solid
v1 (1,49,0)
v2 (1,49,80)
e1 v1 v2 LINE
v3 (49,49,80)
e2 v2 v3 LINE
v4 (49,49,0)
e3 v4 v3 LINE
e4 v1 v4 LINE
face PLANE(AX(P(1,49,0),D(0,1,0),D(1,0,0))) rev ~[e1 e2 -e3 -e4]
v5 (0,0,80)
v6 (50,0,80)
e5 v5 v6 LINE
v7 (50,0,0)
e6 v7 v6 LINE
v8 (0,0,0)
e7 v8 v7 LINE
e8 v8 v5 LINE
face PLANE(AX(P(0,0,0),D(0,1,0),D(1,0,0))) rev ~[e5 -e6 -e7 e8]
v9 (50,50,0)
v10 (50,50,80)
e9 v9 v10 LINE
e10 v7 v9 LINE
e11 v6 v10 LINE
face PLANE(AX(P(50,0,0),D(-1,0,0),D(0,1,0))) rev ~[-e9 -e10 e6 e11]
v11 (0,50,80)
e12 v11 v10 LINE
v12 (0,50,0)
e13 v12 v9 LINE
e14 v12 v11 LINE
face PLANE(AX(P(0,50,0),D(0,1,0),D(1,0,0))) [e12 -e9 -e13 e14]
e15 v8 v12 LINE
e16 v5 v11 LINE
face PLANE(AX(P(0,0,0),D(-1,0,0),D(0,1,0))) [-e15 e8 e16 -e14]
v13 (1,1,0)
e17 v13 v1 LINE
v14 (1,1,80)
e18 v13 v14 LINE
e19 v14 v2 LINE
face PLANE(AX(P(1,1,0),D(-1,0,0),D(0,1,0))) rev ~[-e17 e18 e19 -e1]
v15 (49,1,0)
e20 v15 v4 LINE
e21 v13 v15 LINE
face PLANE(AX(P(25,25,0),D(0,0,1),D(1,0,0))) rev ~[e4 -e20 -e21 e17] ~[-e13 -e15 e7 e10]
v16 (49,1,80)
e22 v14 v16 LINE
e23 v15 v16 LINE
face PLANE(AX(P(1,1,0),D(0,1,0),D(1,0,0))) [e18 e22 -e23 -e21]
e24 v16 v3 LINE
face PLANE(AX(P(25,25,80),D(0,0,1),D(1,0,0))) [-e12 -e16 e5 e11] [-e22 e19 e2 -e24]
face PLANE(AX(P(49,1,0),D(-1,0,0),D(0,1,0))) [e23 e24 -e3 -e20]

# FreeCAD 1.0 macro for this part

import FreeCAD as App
import Part
import Sketcher
Q = App.Units.Quantity


def add_polygon(sketch, points):
    """Adds a closed chain of lines whose ends are joined by coincident constraints."""
    first, n = sketch.GeometryCount, len(points)
    for a, b in zip(points, points[1:] + points[:1]):
        sketch.addGeometry(Part.LineSegment(App.Vector(*a, 0), App.Vector(*b, 0)), False)
    for i in range(n):
        sketch.addConstraint(Sketcher.Constraint("Coincident", first + i, 2, first + (i + 1) % n, 1))

doc = App.newDocument("Part")
body = doc.addObject("PartDesign::Body", "Body")

# Sketch on XY plane
sketch1 = doc.addObject("Sketcher::SketchObject", "Sketch")
body.addObject(sketch1)
sketch1.AttachmentSupport = (doc.XY_Plane, [""])
sketch1.MapMode = "FlatFace"
add_polygon(sketch1, [(1, 49), (1, 1), (49, 1), (49, 49)])  # lines 0-3
sketch1.addConstraint(Sketcher.Constraint("Vertical", 0))
sketch1.addConstraint(Sketcher.Constraint("Horizontal", 1))
sketch1.addConstraint(Sketcher.Constraint("Vertical", 2))
sketch1.addConstraint(Sketcher.Constraint("Horizontal", 3))
sketch1.addConstraint(Sketcher.Constraint("Equal", 3, 0))
sketch1.addConstraint(Sketcher.Constraint("DistanceX", 1, 1, 1, 2, Q("48 mm")))
sketch1.addConstraint(Sketcher.Constraint("DistanceX", -1, 1, 0, 2, Q("1 mm")))
sketch1.addConstraint(Sketcher.Constraint("DistanceY", -1, 1, 0, 2, Q("1 mm")))
pad1 = doc.addObject("PartDesign::Pad", "Pad")
body.addObject(pad1)
pad1.Profile = sketch1
pad1.Length = 80
body2 = doc.addObject("PartDesign::Body", "Body001")

# Sketch on XY plane
sketch2 = doc.addObject("Sketcher::SketchObject", "Sketch001")
body2.addObject(sketch2)
sketch2.AttachmentSupport = (doc.getObject("XY_Plane001"), [""])
sketch2.MapMode = "FlatFace"
add_polygon(sketch2, [(0, 50), (0, 0), (50, 0), (50, 50)])  # lines 0-3
sketch2.addConstraint(Sketcher.Constraint("Vertical", 0))
sketch2.addConstraint(Sketcher.Constraint("Horizontal", 1))
sketch2.addConstraint(Sketcher.Constraint("Vertical", 2))
sketch2.addConstraint(Sketcher.Constraint("Horizontal", 3))
sketch2.addConstraint(Sketcher.Constraint("Coincident", 0, 2, -1, 1))
sketch2.addConstraint(Sketcher.Constraint("Equal", 3, 0))
sketch2.addConstraint(Sketcher.Constraint("DistanceX", 1, 1, 1, 2, Q("50 mm")))
pad2 = doc.addObject("PartDesign::Pad", "Pad001")
body2.addObject(pad2)
pad2.Profile = sketch2
pad2.Length = 80
doc.recompute()

boolean = doc.addObject("PartDesign::Boolean", "Boolean")
body2.addObject(boolean)
boolean.Type = "Cut"
boolean.addObjects([body])

doc.recompute()
